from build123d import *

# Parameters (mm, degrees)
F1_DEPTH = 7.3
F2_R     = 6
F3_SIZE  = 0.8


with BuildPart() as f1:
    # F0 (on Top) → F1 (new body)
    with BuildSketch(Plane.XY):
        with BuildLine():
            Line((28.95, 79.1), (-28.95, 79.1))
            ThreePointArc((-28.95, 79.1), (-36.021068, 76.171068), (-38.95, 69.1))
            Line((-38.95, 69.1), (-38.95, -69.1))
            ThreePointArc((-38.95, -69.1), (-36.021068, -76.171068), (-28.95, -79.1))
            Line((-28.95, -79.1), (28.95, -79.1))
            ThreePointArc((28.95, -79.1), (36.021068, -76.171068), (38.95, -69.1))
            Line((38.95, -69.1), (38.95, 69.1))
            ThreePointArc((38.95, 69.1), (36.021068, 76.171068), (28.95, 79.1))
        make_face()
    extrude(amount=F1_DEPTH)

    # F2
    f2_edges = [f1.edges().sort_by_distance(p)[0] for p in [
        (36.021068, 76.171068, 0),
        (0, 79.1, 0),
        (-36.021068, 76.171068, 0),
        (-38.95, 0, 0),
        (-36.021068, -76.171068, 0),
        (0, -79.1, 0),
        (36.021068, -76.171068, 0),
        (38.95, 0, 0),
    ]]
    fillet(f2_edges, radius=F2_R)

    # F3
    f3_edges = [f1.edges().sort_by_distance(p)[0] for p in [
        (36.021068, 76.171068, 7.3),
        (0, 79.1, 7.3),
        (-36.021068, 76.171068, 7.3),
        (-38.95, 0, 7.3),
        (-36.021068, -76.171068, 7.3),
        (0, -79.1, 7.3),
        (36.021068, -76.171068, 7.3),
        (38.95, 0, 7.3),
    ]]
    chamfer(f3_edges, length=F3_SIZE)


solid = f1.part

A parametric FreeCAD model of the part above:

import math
import FreeCAD as App
import Part
import Sketcher

V = App.Vector
Q = App.Units.Quantity


def edges_at(feature, points):
    """Names of the edges that pass closest to the given points."""
    edges = feature.Shape.Edges
    near = lambda p: min(range(len(edges)), key=lambda i: edges[i].distToShape(Part.Vertex(*p))[0])
    return sorted({f"Edge{near(p) + 1}" for p in points})

doc = App.newDocument("Part")
params = doc.addObject("Spreadsheet::Sheet", "Params")
for row, (alias, value) in enumerate([
    ("sketch1_radius", "9.999999 mm"),
    ("sketch1_width", "57.9 mm"),
    ("sketch1_height", "138.2 mm"),
    ("pad1_length", "7.3 mm"),
    ("fillet_radius", "6 mm"),
    ("chamfer_size", "0.8 mm"),
], start=1):
    params.set(f"A{row}", alias)
    params.set(f"B{row}", "=" + value)
    params.setAlias(f"B{row}", alias)

body = doc.addObject("PartDesign::Body", "Body")

# Sketch on XY plane
sketch1 = body.newObject("Sketcher::SketchObject", "Sketch")
sketch1.AttachmentSupport = (doc.getObject("XY_Plane"), [""])
sketch1.MapMode = "FlatFace"
sketch1.addGeometry(Part.LineSegment(V(28.95, 79.1, 0), V(-28.95, 79.1, 0)), False)
sketch1.addGeometry(Part.ArcOfCircle(Part.Circle(V(-28.950001, 69.100001, 0), V(0, 0, 1), 9.999999), math.radians(89.999996), math.radians(180.000004)), False)
sketch1.addGeometry(Part.LineSegment(V(-38.95, 69.1, 0), V(-38.95, -69.1, 0)), False)
sketch1.addGeometry(Part.ArcOfCircle(Part.Circle(V(-28.950001, -69.100001, 0), V(0, 0, 1), 9.999999), math.radians(179.999996), math.radians(270.000004)), False)
sketch1.addGeometry(Part.LineSegment(V(-28.95, -79.1, 0), V(28.95, -79.1, 0)), False)
sketch1.addGeometry(Part.ArcOfCircle(Part.Circle(V(28.950001, -69.100001, 0), V(0, 0, 1), 9.999999), math.radians(-90.000004), math.radians(0.000004)), False)
sketch1.addGeometry(Part.LineSegment(V(38.95, -69.1, 0), V(38.95, 69.1, 0)), False)
sketch1.addGeometry(Part.ArcOfCircle(Part.Circle(V(28.950001, 69.100001, 0), V(0, 0, 1), 9.999999), math.radians(-0.000004), math.radians(90.000004)), False)
sketch1.addConstraint(Sketcher.Constraint("Tangent", 0, 2, 1, 1))
sketch1.addConstraint(Sketcher.Constraint("Tangent", 1, 2, 2, 1))
sketch1.addConstraint(Sketcher.Constraint("Tangent", 2, 2, 3, 1))
sketch1.addConstraint(Sketcher.Constraint("Tangent", 3, 2, 4, 1))
sketch1.addConstraint(Sketcher.Constraint("Tangent", 4, 2, 5, 1))
sketch1.addConstraint(Sketcher.Constraint("Tangent", 5, 2, 6, 1))
sketch1.addConstraint(Sketcher.Constraint("Tangent", 6, 2, 7, 1))
sketch1.addConstraint(Sketcher.Constraint("Tangent", 7, 2, 0, 1))
sketch1.addConstraint(Sketcher.Constraint("Horizontal", 0))
sketch1.addConstraint(Sketcher.Constraint("Vertical", 2))
sketch1.addConstraint(Sketcher.Constraint("Horizontal", 4))
sketch1.addConstraint(Sketcher.Constraint("Vertical", 6))
sketch1.addConstraint(Sketcher.Constraint("Equal", 1, 3))
sketch1.addConstraint(Sketcher.Constraint("Equal", 3, 5))
sketch1.addConstraint(Sketcher.Constraint("Equal", 5, 7))
sketch1.addConstraint(Sketcher.Constraint("Symmetric", 1, 3, 5, 3, -1, 1))
sketch1.addConstraint(Sketcher.Constraint("Radius", 1, Q("9.999999 mm")))
sketch1.addConstraint(Sketcher.Constraint("DistanceX", 0, 2, 0, 1, Q("57.9 mm")))
sketch1.addConstraint(Sketcher.Constraint("DistanceY", 2, 2, 2, 1, Q("138.2 mm")))
sketch1.setExpression("Constraints[16]", "Params.sketch1_radius")
sketch1.setExpression("Constraints[17]", "Params.sketch1_width")
sketch1.setExpression("Constraints[18]", "Params.sketch1_height")
pad1 = body.newObject("PartDesign::Pad", "Pad")
pad1.Profile = sketch1
pad1.setExpression("Length", "Params.pad1_length")
doc.recompute()

fillet = body.newObject("PartDesign::Fillet", "Fillet")
fillet.Base = (pad1, edges_at(pad1, [
    (36.021, 76.171, 0),
    (0, 79.1, 0),
    (-36.021, 76.171, 0),
    (-38.95, 0, 0),
    (-36.021, -76.171, 0),
    (0, -79.1, 0),
    (36.021, -76.171, 0),
    (38.95, 0, 0),
]))
fillet.setExpression("Radius", "Params.fillet_radius")
doc.recompute()

chamfer = body.newObject("PartDesign::Chamfer", "Chamfer")
chamfer.Base = (fillet, edges_at(fillet, [
    (36.021, 76.171, 7.3),
    (0, 79.1, 7.3),
    (-36.021, 76.171, 7.3),
    (-38.95, 0, 7.3),
    (-36.021, -76.171, 7.3),
    (0, -79.1, 7.3),
    (36.021, -76.171, 7.3),
    (38.95, 0, 7.3),
]))
chamfer.setExpression("Size", "Params.chamfer_size")

doc.recompute()
